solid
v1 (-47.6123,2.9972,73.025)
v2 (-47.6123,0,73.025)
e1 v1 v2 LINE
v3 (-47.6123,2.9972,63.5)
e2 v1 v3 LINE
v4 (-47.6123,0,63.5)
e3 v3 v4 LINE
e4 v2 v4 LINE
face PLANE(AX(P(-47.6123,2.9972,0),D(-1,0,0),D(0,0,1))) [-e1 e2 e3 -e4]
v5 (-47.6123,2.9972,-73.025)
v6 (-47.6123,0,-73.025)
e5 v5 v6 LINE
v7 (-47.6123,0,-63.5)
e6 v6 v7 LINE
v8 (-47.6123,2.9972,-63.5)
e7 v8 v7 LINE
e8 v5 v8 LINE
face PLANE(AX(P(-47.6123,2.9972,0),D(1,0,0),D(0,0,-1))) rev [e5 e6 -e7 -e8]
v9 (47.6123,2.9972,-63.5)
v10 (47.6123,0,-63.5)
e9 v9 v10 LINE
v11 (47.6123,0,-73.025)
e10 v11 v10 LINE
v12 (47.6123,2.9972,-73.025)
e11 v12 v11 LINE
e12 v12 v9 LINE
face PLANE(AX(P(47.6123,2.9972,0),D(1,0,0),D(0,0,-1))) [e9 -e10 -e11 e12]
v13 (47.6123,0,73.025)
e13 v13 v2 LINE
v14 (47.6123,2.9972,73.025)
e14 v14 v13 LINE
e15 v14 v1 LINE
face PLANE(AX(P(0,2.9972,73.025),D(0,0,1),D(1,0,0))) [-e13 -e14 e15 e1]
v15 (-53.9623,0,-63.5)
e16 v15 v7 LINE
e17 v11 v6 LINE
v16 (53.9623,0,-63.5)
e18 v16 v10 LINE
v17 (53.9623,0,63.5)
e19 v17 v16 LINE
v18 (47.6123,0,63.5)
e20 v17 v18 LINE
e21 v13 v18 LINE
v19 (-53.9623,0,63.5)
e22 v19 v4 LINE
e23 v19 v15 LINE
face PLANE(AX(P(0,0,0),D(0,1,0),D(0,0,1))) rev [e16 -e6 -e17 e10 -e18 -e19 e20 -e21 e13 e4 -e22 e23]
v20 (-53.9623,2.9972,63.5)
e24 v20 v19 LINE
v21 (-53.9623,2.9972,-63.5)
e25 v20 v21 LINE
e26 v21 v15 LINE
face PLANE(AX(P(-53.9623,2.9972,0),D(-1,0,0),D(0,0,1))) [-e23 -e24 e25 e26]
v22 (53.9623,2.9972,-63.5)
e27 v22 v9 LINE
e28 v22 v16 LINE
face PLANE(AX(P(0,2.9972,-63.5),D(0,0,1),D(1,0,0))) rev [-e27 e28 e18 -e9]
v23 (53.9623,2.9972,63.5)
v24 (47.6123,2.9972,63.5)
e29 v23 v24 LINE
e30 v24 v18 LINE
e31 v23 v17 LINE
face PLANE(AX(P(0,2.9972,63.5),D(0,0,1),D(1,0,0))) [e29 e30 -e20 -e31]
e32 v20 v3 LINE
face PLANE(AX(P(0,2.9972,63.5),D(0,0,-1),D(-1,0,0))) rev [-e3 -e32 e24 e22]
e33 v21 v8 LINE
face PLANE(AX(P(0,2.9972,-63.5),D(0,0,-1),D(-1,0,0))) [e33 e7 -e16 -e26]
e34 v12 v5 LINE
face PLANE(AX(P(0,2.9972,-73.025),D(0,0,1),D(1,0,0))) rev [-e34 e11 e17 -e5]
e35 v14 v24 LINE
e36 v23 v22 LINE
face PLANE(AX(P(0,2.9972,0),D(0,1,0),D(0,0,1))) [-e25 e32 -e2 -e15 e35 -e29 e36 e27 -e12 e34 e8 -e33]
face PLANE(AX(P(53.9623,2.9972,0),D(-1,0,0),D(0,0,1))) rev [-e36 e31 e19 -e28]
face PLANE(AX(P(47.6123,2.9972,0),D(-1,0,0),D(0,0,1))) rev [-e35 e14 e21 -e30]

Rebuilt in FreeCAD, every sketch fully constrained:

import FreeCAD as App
import Part
import Sketcher
Q = App.Units.Quantity

doc = App.newDocument("Part")
body = doc.addObject("PartDesign::Body", "Body")

sketch1 = doc.addObject("Sketcher::SketchObject", "Sketch")
body.addObject(sketch1)
sketch1.AttachmentSupport = (doc.XZ_Plane, [""])
sketch1.MapMode = "FlatFace"
sketch1.addGeometry(Part.LineSegment(App.Vector(-47.6123, 73.025, 0), App.Vector(47.6123, 73.025, 0)), False)
sketch1.addGeometry(Part.LineSegment(App.Vector(47.6123, 73.025, 0), App.Vector(47.6123, 63.5, 0)), False)
sketch1.addGeometry(Part.LineSegment(App.Vector(47.6123, 63.5, 0), App.Vector(53.9623, 63.5, 0)), False)
sketch1.addGeometry(Part.LineSegment(App.Vector(53.9623, 63.5, 0), App.Vector(53.9623, -63.5, 0)), False)
sketch1.addGeometry(Part.LineSegment(App.Vector(53.9623, -63.5, 0), App.Vector(47.6123, -63.5, 0)), False)
sketch1.addGeometry(Part.LineSegment(App.Vector(47.6123, -63.5, 0), App.Vector(47.6123, -73.025, 0)), False)
sketch1.addGeometry(Part.LineSegment(App.Vector(47.6123, -73.025, 0), App.Vector(-47.6123, -73.025, 0)), False)
sketch1.addGeometry(Part.LineSegment(App.Vector(-47.6123, -73.025, 0), App.Vector(-47.6123, -63.5, 0)), False)
sketch1.addGeometry(Part.LineSegment(App.Vector(-47.6123, -63.5, 0), App.Vector(-53.9623, -63.5, 0)), False)
sketch1.addGeometry(Part.LineSegment(App.Vector(-53.9623, -63.5, 0), App.Vector(-53.9623, 63.5, 0)), False)
sketch1.addGeometry(Part.LineSegment(App.Vector(-53.9623, 63.5, 0), App.Vector(-47.6123, 63.5, 0)), False)
sketch1.addGeometry(Part.LineSegment(App.Vector(-47.6123, 63.5, 0), App.Vector(-47.6123, 73.025, 0)), False)
sketch1.addConstraint(Sketcher.Constraint("Coincident", 0, 2, 1, 1))
sketch1.addConstraint(Sketcher.Constraint("Coincident", 1, 2, 2, 1))
sketch1.addConstraint(Sketcher.Constraint("Coincident", 2, 2, 3, 1))
sketch1.addConstraint(Sketcher.Constraint("Coincident", 3, 2, 4, 1))
sketch1.addConstraint(Sketcher.Constraint("Coincident", 4, 2, 5, 1))
sketch1.addConstraint(Sketcher.Constraint("Coincident", 5, 2, 6, 1))
sketch1.addConstraint(Sketcher.Constraint("Coincident", 6, 2, 7, 1))
sketch1.addConstraint(Sketcher.Constraint("Coincident", 7, 2, 8, 1))
sketch1.addConstraint(Sketcher.Constraint("Coincident", 8, 2, 9, 1))
sketch1.addConstraint(Sketcher.Constraint("Coincident", 9, 2, 10, 1))
sketch1.addConstraint(Sketcher.Constraint("Coincident", 10, 2, 11, 1))
sketch1.addConstraint(Sketcher.Constraint("Coincident", 11, 2, 0, 1))
sketch1.addConstraint(Sketcher.Constraint("Horizontal", 0))
sketch1.addConstraint(Sketcher.Constraint("Vertical", 1))
sketch1.addConstraint(Sketcher.Constraint("Horizontal", 2))
sketch1.addConstraint(Sketcher.Constraint("Vertical", 3))
sketch1.addConstraint(Sketcher.Constraint("Horizontal", 4))
sketch1.addConstraint(Sketcher.Constraint("Vertical", 5))
sketch1.addConstraint(Sketcher.Constraint("Horizontal", 6))
sketch1.addConstraint(Sketcher.Constraint("Vertical", 7))
sketch1.addConstraint(Sketcher.Constraint("Horizontal", 8))
sketch1.addConstraint(Sketcher.Constraint("Vertical", 9))
sketch1.addConstraint(Sketcher.Constraint("Horizontal", 10))
sketch1.addConstraint(Sketcher.Constraint("Vertical", 11))
sketch1.addConstraint(Sketcher.Constraint("Symmetric", 0, 2, 6, 2, -1, 1))
sketch1.addConstraint(Sketcher.Constraint("Symmetric", 2, 2, 8, 2, -1, 1))
sketch1.addConstraint(Sketcher.Constraint("Symmetric", 4, 2, 10, 2, -1, 1))
sketch1.addConstraint(Sketcher.Constraint("Symmetric", 4, 2, 7, 2, -2))
sketch1.addConstraint(Sketcher.Constraint("DistanceY", 3, 2, 3, 1, Q("5 in")))
sketch1.addConstraint(Sketcher.Constraint("DistanceX", 2, 1, 2, 2, Q("0.25 in")))
sketch1.addConstraint(Sketcher.Constraint("DistanceX", 0, 1, 0, 2, Q("3.749 in")))
sketch1.addConstraint(Sketcher.Constraint("DistanceY", 1, 2, 1, 1, Q("0.375 in")))
pad1 = doc.addObject("PartDesign::Pad", "Pad")
body.addObject(pad1)
pad1.Profile = sketch1
pad1.Length = Q("0.118 in")
pad1.Reversed = True

doc.recompute()
